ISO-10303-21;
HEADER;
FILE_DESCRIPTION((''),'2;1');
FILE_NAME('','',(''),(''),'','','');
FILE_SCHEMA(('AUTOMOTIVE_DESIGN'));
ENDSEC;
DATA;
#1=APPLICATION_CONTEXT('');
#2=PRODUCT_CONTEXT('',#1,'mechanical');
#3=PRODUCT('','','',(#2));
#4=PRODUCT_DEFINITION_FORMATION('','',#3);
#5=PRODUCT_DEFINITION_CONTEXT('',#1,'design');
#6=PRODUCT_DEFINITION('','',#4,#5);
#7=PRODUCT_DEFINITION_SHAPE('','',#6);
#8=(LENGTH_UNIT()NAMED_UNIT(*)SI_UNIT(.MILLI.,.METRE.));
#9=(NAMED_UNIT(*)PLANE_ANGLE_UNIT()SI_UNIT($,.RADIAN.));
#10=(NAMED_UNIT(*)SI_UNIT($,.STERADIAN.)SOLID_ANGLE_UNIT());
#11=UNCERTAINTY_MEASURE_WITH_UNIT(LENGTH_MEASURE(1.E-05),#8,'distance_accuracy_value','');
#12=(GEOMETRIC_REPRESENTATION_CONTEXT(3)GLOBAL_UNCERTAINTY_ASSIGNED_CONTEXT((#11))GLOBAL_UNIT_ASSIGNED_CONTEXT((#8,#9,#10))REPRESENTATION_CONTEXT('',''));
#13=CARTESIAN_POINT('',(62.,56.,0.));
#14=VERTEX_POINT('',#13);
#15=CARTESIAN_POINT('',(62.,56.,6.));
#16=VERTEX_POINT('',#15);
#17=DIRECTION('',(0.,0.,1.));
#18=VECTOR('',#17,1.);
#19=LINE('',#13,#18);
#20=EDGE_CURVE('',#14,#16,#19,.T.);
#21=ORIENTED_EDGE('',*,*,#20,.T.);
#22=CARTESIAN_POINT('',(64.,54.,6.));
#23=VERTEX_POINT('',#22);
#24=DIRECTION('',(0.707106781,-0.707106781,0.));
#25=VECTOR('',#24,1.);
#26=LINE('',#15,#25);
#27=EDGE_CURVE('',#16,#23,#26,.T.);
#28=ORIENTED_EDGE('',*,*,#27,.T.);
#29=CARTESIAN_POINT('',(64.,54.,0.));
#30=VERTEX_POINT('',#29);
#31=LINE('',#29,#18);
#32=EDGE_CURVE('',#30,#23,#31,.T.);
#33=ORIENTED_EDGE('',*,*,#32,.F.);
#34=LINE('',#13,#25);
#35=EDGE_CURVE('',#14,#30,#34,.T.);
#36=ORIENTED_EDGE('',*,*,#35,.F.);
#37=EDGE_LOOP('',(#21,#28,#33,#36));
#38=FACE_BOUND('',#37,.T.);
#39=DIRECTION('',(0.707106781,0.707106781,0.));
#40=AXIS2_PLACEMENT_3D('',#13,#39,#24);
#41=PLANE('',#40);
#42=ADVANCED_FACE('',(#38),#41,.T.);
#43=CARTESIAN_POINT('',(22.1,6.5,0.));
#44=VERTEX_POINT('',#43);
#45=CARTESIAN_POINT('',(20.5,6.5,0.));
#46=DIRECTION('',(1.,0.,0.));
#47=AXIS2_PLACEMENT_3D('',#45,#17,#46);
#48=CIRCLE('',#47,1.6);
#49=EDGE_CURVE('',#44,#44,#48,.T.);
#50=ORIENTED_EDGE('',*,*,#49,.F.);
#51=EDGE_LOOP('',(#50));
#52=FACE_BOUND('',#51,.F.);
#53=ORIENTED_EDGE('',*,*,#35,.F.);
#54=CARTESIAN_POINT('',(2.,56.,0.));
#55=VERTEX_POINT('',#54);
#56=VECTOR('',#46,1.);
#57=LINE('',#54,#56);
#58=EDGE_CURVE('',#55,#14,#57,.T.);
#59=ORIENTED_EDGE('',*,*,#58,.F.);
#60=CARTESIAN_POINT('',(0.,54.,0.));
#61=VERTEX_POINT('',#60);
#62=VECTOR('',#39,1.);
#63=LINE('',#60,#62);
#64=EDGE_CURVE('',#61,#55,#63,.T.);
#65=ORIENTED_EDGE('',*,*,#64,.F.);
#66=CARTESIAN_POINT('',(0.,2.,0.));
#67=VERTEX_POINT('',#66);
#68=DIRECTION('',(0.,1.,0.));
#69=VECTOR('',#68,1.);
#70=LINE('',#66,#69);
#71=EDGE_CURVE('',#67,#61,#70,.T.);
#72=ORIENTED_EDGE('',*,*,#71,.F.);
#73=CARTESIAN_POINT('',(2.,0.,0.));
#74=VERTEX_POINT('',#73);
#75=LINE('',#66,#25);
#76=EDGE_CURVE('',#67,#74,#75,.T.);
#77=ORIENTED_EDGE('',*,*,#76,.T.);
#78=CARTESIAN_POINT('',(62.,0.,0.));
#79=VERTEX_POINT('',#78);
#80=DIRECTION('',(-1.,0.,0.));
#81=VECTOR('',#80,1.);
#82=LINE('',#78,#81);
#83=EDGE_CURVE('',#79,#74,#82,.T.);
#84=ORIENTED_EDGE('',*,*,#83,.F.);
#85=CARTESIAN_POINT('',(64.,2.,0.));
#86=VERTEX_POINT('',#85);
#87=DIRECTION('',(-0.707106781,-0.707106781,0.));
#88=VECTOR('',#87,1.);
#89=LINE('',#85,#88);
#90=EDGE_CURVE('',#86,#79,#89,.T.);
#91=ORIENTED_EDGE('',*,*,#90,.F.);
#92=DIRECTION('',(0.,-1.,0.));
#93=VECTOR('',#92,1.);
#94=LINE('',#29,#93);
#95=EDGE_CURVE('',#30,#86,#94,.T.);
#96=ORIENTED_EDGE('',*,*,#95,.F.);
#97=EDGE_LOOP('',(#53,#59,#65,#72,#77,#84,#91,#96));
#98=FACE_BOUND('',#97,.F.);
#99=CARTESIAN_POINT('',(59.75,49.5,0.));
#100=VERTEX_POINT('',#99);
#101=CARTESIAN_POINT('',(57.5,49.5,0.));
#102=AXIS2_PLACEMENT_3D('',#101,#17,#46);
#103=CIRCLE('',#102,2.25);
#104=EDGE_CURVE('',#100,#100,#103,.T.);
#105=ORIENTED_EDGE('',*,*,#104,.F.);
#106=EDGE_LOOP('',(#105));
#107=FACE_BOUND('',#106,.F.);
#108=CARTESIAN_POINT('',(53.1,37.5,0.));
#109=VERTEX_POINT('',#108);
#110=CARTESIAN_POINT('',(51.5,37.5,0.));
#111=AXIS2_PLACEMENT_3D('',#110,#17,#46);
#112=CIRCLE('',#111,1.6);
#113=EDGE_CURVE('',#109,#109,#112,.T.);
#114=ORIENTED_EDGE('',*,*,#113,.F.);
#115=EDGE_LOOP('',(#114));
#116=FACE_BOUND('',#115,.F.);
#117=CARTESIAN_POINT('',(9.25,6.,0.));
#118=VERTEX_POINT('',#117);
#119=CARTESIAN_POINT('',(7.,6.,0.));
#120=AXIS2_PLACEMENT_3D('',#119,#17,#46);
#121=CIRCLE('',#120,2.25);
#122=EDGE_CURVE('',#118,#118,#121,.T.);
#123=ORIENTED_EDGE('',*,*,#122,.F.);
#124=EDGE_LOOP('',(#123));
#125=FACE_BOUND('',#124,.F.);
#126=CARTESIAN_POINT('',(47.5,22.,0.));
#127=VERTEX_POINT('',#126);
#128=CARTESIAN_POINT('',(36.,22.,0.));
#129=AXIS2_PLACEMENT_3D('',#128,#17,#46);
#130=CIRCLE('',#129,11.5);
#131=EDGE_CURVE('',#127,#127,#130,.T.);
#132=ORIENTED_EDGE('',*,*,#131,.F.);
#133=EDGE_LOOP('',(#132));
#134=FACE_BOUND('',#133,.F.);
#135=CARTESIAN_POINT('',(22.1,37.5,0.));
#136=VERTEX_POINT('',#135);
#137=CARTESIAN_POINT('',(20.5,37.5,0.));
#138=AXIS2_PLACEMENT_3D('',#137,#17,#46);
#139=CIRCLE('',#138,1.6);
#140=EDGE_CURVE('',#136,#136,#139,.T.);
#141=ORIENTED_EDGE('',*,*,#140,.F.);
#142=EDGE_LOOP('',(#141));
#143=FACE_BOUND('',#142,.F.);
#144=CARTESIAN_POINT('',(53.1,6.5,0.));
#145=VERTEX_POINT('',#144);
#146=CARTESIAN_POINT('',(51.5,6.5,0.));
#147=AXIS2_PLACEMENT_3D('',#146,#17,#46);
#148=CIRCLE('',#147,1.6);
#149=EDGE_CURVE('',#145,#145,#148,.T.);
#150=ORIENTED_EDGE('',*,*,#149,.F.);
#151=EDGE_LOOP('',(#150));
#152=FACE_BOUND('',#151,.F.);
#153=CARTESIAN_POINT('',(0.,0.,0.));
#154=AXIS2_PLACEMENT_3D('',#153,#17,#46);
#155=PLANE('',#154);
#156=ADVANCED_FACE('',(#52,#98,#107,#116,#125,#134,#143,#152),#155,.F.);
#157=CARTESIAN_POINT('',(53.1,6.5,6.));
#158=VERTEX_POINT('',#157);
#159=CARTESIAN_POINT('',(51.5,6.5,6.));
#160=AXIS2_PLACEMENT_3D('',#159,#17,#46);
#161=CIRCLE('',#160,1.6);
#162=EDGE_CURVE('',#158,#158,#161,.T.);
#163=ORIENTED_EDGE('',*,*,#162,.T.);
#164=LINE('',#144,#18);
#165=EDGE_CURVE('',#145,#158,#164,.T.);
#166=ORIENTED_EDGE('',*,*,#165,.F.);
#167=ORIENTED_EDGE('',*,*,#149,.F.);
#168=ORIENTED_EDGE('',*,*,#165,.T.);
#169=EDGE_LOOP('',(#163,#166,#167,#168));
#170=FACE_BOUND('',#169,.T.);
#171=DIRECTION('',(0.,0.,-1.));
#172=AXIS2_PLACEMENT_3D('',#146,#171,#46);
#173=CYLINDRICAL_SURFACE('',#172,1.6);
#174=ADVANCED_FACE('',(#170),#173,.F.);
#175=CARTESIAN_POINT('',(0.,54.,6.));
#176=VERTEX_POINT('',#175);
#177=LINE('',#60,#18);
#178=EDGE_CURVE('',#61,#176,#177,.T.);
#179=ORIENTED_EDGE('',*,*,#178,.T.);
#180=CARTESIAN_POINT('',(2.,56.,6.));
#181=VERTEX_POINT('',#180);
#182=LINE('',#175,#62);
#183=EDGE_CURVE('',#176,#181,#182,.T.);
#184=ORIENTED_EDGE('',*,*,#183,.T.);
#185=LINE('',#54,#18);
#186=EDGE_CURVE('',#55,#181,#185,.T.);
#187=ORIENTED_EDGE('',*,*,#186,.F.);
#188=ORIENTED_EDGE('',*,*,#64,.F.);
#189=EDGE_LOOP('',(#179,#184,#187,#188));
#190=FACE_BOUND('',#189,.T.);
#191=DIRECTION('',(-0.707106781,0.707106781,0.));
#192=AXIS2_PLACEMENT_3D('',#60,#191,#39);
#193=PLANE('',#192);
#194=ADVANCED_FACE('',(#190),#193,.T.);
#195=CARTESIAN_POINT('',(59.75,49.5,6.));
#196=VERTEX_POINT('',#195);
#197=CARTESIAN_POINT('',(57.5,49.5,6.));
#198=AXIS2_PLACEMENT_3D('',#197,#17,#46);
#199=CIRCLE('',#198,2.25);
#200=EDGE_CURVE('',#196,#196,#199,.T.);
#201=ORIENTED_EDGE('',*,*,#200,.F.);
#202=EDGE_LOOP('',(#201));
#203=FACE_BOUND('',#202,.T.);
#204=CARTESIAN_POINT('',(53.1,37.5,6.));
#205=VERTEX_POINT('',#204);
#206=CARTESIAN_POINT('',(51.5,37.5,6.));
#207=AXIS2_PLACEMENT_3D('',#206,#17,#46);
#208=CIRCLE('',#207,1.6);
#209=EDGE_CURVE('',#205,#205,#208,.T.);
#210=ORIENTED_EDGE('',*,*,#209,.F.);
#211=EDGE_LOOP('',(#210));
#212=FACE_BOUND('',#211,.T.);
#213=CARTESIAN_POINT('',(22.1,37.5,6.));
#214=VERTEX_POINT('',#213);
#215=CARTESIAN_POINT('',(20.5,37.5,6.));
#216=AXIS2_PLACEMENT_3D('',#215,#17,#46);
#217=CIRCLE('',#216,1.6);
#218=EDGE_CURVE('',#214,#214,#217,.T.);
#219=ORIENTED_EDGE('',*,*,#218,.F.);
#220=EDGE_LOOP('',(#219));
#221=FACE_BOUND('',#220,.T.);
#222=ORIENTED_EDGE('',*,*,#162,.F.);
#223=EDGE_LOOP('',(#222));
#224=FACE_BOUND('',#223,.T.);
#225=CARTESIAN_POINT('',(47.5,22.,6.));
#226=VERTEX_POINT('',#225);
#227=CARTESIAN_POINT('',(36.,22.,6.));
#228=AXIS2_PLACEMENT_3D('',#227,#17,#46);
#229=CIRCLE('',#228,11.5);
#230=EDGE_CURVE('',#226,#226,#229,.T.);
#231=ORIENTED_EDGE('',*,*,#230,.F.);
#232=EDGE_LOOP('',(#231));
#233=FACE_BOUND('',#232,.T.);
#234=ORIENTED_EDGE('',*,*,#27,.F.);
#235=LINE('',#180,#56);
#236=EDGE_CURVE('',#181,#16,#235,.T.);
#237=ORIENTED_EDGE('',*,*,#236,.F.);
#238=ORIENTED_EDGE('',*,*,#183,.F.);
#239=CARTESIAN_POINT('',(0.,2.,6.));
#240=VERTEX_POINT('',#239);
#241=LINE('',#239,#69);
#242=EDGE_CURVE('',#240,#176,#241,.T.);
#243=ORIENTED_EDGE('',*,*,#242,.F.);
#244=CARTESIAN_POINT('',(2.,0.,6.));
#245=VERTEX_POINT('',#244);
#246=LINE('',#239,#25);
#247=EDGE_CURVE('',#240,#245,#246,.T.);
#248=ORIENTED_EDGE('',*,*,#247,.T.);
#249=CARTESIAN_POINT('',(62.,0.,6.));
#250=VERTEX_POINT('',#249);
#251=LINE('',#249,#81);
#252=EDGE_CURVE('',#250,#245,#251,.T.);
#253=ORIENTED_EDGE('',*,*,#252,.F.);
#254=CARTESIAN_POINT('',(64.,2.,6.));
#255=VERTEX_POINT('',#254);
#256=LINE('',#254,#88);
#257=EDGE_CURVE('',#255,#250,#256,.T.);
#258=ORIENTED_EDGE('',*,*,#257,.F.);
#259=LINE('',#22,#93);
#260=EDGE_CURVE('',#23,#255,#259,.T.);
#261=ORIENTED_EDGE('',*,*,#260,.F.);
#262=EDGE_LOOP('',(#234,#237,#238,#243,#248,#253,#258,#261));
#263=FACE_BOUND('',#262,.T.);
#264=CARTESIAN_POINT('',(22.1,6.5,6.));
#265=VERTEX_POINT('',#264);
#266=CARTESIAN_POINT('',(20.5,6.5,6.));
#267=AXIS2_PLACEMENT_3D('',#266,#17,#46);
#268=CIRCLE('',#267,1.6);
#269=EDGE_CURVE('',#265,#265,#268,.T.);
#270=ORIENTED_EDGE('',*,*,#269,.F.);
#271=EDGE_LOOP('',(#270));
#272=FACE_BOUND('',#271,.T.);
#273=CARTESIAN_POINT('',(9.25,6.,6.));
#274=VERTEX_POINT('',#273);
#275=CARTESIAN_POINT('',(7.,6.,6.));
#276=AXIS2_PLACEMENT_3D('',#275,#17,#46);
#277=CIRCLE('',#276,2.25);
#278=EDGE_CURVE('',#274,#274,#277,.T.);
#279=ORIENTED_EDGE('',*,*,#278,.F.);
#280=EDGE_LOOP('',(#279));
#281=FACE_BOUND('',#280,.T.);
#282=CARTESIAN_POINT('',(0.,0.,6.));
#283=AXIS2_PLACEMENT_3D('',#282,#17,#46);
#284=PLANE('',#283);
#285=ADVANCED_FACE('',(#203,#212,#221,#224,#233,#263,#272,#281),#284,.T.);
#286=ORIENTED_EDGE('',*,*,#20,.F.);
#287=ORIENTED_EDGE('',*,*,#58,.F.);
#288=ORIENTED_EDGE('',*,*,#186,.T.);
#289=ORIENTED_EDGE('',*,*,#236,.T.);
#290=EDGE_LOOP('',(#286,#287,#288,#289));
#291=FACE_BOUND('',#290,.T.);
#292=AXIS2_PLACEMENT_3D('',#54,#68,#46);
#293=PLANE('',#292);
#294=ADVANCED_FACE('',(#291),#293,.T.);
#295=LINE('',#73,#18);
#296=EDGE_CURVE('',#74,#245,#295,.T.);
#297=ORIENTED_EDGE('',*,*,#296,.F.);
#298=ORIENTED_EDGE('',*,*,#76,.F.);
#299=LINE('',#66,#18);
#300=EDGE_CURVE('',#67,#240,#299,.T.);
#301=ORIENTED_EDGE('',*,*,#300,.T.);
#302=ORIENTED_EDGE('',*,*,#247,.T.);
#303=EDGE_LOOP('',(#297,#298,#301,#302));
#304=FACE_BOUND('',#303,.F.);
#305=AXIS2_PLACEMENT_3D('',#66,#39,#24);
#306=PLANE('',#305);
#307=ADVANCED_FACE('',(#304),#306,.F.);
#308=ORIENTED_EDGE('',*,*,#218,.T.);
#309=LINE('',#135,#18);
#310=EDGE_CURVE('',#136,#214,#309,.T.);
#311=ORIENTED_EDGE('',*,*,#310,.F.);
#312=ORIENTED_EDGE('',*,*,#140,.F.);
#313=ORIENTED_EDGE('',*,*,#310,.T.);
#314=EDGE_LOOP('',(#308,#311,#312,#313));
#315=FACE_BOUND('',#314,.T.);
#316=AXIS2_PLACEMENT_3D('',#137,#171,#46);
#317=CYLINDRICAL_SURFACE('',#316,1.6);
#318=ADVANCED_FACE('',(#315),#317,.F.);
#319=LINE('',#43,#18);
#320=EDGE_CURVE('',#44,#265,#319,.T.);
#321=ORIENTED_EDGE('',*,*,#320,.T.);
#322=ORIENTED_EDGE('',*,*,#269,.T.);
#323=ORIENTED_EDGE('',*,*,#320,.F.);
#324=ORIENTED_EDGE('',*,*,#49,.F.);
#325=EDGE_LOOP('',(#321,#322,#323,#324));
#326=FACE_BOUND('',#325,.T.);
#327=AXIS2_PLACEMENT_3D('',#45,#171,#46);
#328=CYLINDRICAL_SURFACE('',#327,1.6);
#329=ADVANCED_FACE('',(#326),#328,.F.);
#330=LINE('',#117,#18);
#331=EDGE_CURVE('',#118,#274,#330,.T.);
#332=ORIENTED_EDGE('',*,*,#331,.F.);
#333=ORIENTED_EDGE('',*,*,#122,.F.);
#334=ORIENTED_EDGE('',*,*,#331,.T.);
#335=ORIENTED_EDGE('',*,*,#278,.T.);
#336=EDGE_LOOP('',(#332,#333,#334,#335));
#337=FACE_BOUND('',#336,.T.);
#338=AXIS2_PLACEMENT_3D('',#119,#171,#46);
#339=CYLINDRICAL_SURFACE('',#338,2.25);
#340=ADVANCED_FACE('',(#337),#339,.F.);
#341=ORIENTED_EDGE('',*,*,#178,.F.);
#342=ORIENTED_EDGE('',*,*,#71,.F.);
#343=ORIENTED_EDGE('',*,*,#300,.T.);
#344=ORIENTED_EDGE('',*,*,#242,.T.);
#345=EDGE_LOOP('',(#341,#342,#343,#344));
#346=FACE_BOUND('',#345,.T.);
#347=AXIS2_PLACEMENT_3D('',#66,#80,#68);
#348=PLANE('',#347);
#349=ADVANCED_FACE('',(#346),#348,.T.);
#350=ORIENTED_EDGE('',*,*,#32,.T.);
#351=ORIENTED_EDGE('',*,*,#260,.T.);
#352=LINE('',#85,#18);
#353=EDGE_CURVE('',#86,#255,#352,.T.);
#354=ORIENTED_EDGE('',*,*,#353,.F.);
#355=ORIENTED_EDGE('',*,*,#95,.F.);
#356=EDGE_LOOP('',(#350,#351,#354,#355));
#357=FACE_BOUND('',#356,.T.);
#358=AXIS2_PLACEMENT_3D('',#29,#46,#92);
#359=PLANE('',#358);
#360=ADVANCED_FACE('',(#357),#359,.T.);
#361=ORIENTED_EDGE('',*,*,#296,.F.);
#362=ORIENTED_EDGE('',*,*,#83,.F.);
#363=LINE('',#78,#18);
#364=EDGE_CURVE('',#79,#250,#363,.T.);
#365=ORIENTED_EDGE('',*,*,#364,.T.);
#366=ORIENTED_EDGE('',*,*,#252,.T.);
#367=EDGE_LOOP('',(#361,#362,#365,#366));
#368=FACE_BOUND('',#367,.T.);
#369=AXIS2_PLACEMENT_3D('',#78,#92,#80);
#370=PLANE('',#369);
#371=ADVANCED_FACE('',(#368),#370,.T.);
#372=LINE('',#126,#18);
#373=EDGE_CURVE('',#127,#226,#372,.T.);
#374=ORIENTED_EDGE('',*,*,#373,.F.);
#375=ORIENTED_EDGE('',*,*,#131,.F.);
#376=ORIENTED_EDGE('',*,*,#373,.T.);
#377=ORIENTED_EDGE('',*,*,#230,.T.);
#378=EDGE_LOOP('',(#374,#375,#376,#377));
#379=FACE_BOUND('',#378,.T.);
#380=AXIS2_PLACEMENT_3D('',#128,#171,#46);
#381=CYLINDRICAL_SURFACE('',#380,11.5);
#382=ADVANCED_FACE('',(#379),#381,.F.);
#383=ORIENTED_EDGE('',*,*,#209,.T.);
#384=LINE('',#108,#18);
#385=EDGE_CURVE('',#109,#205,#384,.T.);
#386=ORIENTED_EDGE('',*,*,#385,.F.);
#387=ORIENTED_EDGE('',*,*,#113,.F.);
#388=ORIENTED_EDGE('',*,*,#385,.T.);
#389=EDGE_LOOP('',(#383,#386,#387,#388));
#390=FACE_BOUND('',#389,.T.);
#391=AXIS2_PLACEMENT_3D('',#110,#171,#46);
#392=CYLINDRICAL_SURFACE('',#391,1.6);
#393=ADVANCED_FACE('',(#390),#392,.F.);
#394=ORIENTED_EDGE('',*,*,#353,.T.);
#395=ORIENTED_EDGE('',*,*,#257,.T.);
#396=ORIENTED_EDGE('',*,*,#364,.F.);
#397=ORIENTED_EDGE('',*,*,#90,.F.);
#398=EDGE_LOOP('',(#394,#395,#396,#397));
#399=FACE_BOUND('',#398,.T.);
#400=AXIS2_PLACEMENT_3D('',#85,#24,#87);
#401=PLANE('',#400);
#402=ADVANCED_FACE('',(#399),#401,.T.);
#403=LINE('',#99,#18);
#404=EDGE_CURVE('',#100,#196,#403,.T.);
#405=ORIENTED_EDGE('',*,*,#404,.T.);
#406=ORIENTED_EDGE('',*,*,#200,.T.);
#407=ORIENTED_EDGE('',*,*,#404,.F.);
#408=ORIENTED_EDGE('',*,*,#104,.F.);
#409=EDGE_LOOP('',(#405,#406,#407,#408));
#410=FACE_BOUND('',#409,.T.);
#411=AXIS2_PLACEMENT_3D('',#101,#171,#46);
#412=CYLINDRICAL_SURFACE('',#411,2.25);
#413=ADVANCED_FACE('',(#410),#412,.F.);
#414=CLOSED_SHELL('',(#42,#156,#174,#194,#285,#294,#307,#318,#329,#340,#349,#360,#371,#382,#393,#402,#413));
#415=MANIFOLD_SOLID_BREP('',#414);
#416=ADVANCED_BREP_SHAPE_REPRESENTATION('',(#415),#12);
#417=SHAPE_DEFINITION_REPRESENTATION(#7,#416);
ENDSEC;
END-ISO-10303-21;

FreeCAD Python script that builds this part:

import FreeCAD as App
import Part
import Sketcher

doc = App.newDocument("Part")
body = doc.addObject("PartDesign::Body", "Body")

# Sketch on XY plane
sketch1 = body.newObject("Sketcher::SketchObject", "Sketch")
sketch1.AttachmentSupport = (doc.getObject("XY_Plane"), [""])
sketch1.MapMode = "FlatFace"
sketch1.addGeometry([
    Part.LineSegment(App.Vector(62, 56, 0), App.Vector(2, 56, 0)),  # 0
    Part.LineSegment(App.Vector(2, 56, 0), App.Vector(0, 54, 0)),  # 1
    Part.LineSegment(App.Vector(0, 54, 0), App.Vector(0, 2, 0)),  # 2
    Part.LineSegment(App.Vector(0, 2, 0), App.Vector(2, 0, 0)),  # 3
    Part.LineSegment(App.Vector(2, 0, 0), App.Vector(62, 0, 0)),  # 4
    Part.LineSegment(App.Vector(62, 0, 0), App.Vector(64, 2, 0)),  # 5
    Part.LineSegment(App.Vector(64, 2, 0), App.Vector(64, 54, 0)),  # 6
    Part.LineSegment(App.Vector(64, 54, 0), App.Vector(62, 56, 0)),  # 7
    Part.Circle(App.Vector(7, 6, 0), App.Vector(0, 0, 1), 2.2),  # 8
    Part.Circle(App.Vector(20.5, 6.5, 0), App.Vector(0, 0, 1), 1.6),  # 9
    Part.Circle(App.Vector(51.5, 6.5, 0), App.Vector(0, 0, 1), 1.6),  # 10
    Part.Circle(App.Vector(36, 22, 0), App.Vector(0, 0, 1), 11.5),  # 11
    Part.Circle(App.Vector(20.5, 37.5, 0), App.Vector(0, 0, 1), 1.6),  # 12
    Part.Circle(App.Vector(51.5, 37.5, 0), App.Vector(0, 0, 1), 1.6),  # 13
    Part.Circle(App.Vector(57.5, 49.5, 0), App.Vector(0, 0, 1), 2.2),  # 14
], False)
sketch1.addConstraint([
    Sketcher.Constraint("Coincident", 0, 2, 1, 1),
    Sketcher.Constraint("Coincident", 1, 2, 2, 1),
    Sketcher.Constraint("Coincident", 2, 2, 3, 1),
    Sketcher.Constraint("Coincident", 3, 2, 4, 1),
    Sketcher.Constraint("Coincident", 4, 2, 5, 1),
    Sketcher.Constraint("Coincident", 5, 2, 6, 1),
    Sketcher.Constraint("Coincident", 6, 2, 7, 1),
    Sketcher.Constraint("Coincident", 7, 2, 0, 1),
    Sketcher.Constraint("Horizontal", 0),
    Sketcher.Constraint("Vertical", 2),
    Sketcher.Constraint("Horizontal", 4),
    Sketcher.Constraint("Vertical", 6),
    Sketcher.Constraint("Equal", 9, 10),
    Sketcher.Constraint("Equal", 10, 12),
    Sketcher.Constraint("Equal", 12, 13),
    Sketcher.Constraint("Equal", 8, 14),
    Sketcher.Constraint("PointOnObject", 1, 2, -2),
    Sketcher.Constraint("PointOnObject", 3, 2, -1),
    Sketcher.Constraint("Perpendicular", 1, 3),
    Sketcher.Constraint("Perpendicular", 3, 5),
    Sketcher.Constraint("Perpendicular", 5, 7),
    Sketcher.Constraint("Horizontal", 9, 3, 10, 3),
    Sketcher.Constraint("Horizontal", 12, 3, 13, 3),
    Sketcher.Constraint("Horizontal", 2, 2, 5, 2),
    Sketcher.Constraint("Horizontal", 1, 2, 6, 2),
    Sketcher.Constraint("Vertical", 9, 3, 12, 3),
    Sketcher.Constraint("Vertical", 10, 3, 13, 3),
    Sketcher.Constraint("Vertical", 0, 2, 3, 2),
    Sketcher.Constraint("Vertical", 4, 2, 7, 2),
    Sketcher.Constraint("Diameter", 11, 23.0),
    Sketcher.Constraint("Diameter", 8, 4.5),
    Sketcher.Constraint("Diameter", 9, 3.2),
    Sketcher.Constraint("DistanceY", -1, 1, 8, 3, 6.0),
    Sketcher.Constraint("DistanceX", -1, 1, 11, 3, 36.0),
    Sketcher.Constraint("DistanceY", -1, 1, 11, 3, 22.0),
    Sketcher.Constraint("DistanceX", -1, 1, 0, 2, 2.0),
    Sketcher.Constraint("DistanceX", 9, 3, 10, 3, 31.0),
    Sketcher.Constraint("DistanceY", 9, 3, 12, 3, 31.0),
    Sketcher.Constraint("DistanceX", 13, 3, 14, 3, 6.0),
    Sketcher.Constraint("DistanceY", 13, 3, 14, 3, 12.0),
    Sketcher.Constraint("DistanceY", 11, 3, 0, 2, 34.0),
    Sketcher.Constraint("DistanceX", 11, 3, 5, 2, 28.0),
    Sketcher.Constraint("DistanceY", 2, 2, 9, 3, 4.5),
    Sketcher.Constraint("DistanceX", 14, 3, 4, 2, 4.5),
    Sketcher.Constraint("DistanceX", -1, 1, 8, 3, 7.0),
])
pad1 = body.newObject("PartDesign::Pad", "Pad")
pad1.Profile = sketch1
pad1.Length = 6

doc.recompute()
